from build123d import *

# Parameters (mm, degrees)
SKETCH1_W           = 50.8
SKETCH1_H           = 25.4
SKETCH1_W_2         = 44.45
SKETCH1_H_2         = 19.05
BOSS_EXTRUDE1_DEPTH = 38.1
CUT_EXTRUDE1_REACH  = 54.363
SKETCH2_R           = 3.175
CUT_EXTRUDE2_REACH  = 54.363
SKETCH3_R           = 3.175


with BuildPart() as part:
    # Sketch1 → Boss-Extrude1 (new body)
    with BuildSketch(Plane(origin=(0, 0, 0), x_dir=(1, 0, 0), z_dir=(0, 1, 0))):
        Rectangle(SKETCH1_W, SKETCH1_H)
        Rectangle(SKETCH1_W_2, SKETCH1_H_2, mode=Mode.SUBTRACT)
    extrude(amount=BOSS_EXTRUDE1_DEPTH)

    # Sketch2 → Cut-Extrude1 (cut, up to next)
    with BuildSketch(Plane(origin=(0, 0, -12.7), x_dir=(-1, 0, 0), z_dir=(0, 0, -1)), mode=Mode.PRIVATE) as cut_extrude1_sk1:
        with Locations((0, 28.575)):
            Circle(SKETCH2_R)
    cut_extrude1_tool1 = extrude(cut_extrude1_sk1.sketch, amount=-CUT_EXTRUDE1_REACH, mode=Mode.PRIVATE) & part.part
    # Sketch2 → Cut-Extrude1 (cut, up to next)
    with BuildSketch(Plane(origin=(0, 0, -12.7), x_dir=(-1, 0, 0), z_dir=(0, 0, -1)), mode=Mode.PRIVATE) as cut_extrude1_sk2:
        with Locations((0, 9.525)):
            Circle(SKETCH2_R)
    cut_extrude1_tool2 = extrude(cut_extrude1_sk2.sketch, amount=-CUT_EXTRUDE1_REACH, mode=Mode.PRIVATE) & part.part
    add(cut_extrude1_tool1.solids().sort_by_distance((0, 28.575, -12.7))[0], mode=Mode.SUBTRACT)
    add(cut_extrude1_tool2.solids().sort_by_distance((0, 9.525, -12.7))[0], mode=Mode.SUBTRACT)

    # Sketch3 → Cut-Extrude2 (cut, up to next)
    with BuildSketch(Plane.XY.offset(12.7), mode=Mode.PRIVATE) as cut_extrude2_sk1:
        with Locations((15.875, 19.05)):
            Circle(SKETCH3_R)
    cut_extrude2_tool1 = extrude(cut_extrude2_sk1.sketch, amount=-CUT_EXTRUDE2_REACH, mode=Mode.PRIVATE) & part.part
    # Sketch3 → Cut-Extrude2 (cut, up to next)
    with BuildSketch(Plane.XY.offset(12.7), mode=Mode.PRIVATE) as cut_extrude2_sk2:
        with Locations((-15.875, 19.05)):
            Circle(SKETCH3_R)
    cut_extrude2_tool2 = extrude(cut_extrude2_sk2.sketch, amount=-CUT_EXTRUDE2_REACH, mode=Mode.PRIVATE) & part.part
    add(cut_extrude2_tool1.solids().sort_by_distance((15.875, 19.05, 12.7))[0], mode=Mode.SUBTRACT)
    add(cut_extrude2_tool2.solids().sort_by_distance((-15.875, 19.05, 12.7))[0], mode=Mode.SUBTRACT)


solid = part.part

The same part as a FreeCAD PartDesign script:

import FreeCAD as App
import Part
import Sketcher

V = App.Vector
Q = App.Units.Quantity

doc = App.newDocument("Part")
body = doc.addObject("PartDesign::Body", "Body")

sketch1 = body.newObject("Sketcher::SketchObject", "Sketch")
sketch1.AttachmentSupport = (doc.getObject("XZ_Plane"), [""])
sketch1.MapMode = "FlatFace"
sketch1.addGeometry(Part.LineSegment(V(-25, -13, 0), V(-25, 13, 0)), False)
sketch1.addGeometry(Part.LineSegment(V(-25, 13, 0), V(25, 13, 0)), False)
sketch1.addGeometry(Part.LineSegment(V(25, 13, 0), V(25, -13, 0)), False)
sketch1.addGeometry(Part.LineSegment(V(25, -13, 0), V(-25, -13, 0)), False)
sketch1.addGeometry(Part.LineSegment(V(22, 10, 0), V(-22, 10, 0)), False)
sketch1.addGeometry(Part.LineSegment(V(-22, 10, 0), V(-22, -10, 0)), False)
sketch1.addGeometry(Part.LineSegment(V(-22, -10, 0), V(22, -10, 0)), False)
sketch1.addGeometry(Part.LineSegment(V(22, -10, 0), V(22, 10, 0)), False)
sketch1.addConstraint(Sketcher.Constraint("Coincident", 0, 2, 1, 1))
sketch1.addConstraint(Sketcher.Constraint("Coincident", 1, 2, 2, 1))
sketch1.addConstraint(Sketcher.Constraint("Coincident", 2, 2, 3, 1))
sketch1.addConstraint(Sketcher.Constraint("Coincident", 3, 2, 0, 1))
sketch1.addConstraint(Sketcher.Constraint("Coincident", 4, 2, 5, 1))
sketch1.addConstraint(Sketcher.Constraint("Coincident", 5, 2, 6, 1))
sketch1.addConstraint(Sketcher.Constraint("Coincident", 6, 2, 7, 1))
sketch1.addConstraint(Sketcher.Constraint("Coincident", 7, 2, 4, 1))
sketch1.addConstraint(Sketcher.Constraint("Vertical", 0))
sketch1.addConstraint(Sketcher.Constraint("Horizontal", 1))
sketch1.addConstraint(Sketcher.Constraint("Vertical", 2))
sketch1.addConstraint(Sketcher.Constraint("Horizontal", 3))
sketch1.addConstraint(Sketcher.Constraint("Horizontal", 4))
sketch1.addConstraint(Sketcher.Constraint("Vertical", 5))
sketch1.addConstraint(Sketcher.Constraint("Horizontal", 6))
sketch1.addConstraint(Sketcher.Constraint("Vertical", 7))
sketch1.addConstraint(Sketcher.Constraint("Symmetric", 0, 2, 2, 2, -1, 1))
sketch1.addConstraint(Sketcher.Constraint("Symmetric", 4, 2, 6, 2, -1, 1))
sketch1.addConstraint(Sketcher.Constraint("DistanceX", 1, 1, 1, 2, Q("2 in")))
sketch1.addConstraint(Sketcher.Constraint("DistanceY", 0, 1, 0, 2, Q("1 in")))
sketch1.addConstraint(Sketcher.Constraint("DistanceX", 4, 2, 4, 1, Q("1.75 in")))
sketch1.addConstraint(Sketcher.Constraint("DistanceY", 5, 2, 5, 1, Q("0.75 in")))
pad1 = body.newObject("PartDesign::Pad", "Pad")
pad1.Profile = sketch1
pad1.Length = Q("1.5 in")
pad1.Reversed = True

sketch2 = body.newObject("Sketcher::SketchObject", "Sketch001")
sketch2.AttachmentSupport = (doc.getObject("XY_Plane"), [""])
sketch2.MapMode = "FlatFace"
sketch2.AttachmentOffset = App.Placement(V(0, 0, -0.5 * 25.4), App.Rotation())
sketch2.addGeometry(Part.Circle(V(0, 28.6, 0), V(0, 0, 1), 3.2), False)
sketch2.addConstraint(Sketcher.Constraint("PointOnObject", 0, 3, -2))
sketch2.addConstraint(Sketcher.Constraint("Diameter", 0, Q("0.25 in")))
sketch2.addConstraint(Sketcher.Constraint("DistanceY", -1, 1, 0, 3, Q("1.125 in")))
pocket1 = body.newObject("PartDesign::Pocket", "Pocket")
pocket1.Profile = sketch2
pocket1.Type = "UpToFirst"
pocket1.Reversed = True

sketch3 = body.newObject("Sketcher::SketchObject", "Sketch002")
sketch3.AttachmentSupport = (doc.getObject("XY_Plane"), [""])
sketch3.MapMode = "FlatFace"
sketch3.AttachmentOffset = App.Placement(V(0, 0, -0.5 * 25.4), App.Rotation())
sketch3.addGeometry(Part.Circle(V(0, 9.5, 0), V(0, 0, 1), 3.2), False)
sketch3.addConstraint(Sketcher.Constraint("PointOnObject", 0, 3, -2))
sketch3.addConstraint(Sketcher.Constraint("Diameter", 0, Q("0.25 in")))
sketch3.addConstraint(Sketcher.Constraint("DistanceY", -1, 1, 0, 3, Q("0.375 in")))
pocket2 = body.newObject("PartDesign::Pocket", "Pocket001")
pocket2.Profile = sketch3
pocket2.Type = "UpToFirst"
pocket2.Reversed = True

sketch4 = body.newObject("Sketcher::SketchObject", "Sketch003")
sketch4.AttachmentSupport = (doc.getObject("XY_Plane"), [""])
sketch4.MapMode = "FlatFace"
sketch4.AttachmentOffset = App.Placement(V(0, 0, 0.5 * 25.4), App.Rotation())
sketch4.addGeometry(Part.Circle(V(15.9, 19.1, 0), V(0, 0, 1), 3.2), False)
sketch4.addConstraint(Sketcher.Constraint("Diameter", 0, Q("0.25 in")))
sketch4.addConstraint(Sketcher.Constraint("DistanceY", -1, 1, 0, 3, Q("0.75 in")))
sketch4.addConstraint(Sketcher.Constraint("DistanceX", -1, 1, 0, 3, Q("0.625 in")))
pocket3 = body.newObject("PartDesign::Pocket", "Pocket002")
pocket3.Profile = sketch4
pocket3.Type = "UpToFirst"

sketch5 = body.newObject("Sketcher::SketchObject", "Sketch004")
sketch5.AttachmentSupport = (doc.getObject("XY_Plane"), [""])
sketch5.MapMode = "FlatFace"
sketch5.AttachmentOffset = App.Placement(V(0, 0, 0.5 * 25.4), App.Rotation())
sketch5.addGeometry(Part.Circle(V(-15.9, 19.1, 0), V(0, 0, 1), 3.2), False)
sketch5.addConstraint(Sketcher.Constraint("Diameter", 0, Q("0.25 in")))
sketch5.addConstraint(Sketcher.Constraint("DistanceY", -1, 1, 0, 3, Q("0.75 in")))
sketch5.addConstraint(Sketcher.Constraint("DistanceX", 0, 3, -1, 1, Q("0.625 in")))
pocket4 = body.newObject("PartDesign::Pocket", "Pocket003")
pocket4.Profile = sketch5
pocket4.Type = "UpToFirst"

doc.recompute()
